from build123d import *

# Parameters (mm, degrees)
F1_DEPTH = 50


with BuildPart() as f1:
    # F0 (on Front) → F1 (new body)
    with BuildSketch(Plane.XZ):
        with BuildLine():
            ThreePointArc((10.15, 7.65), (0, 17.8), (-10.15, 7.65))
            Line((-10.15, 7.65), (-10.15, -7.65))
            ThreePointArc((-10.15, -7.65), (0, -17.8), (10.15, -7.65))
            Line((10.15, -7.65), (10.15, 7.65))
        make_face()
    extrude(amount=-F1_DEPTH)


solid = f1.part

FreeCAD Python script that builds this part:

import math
import FreeCAD as App
import Part
import Sketcher
from FreeCAD import Vector
Q = App.Units.Quantity

doc = App.newDocument("Part")
body = doc.addObject("PartDesign::Body", "Body")

# Sketch on XZ plane
sketch1 = body.newObject("Sketcher::SketchObject", "Sketch")
sketch1.AttachmentSupport = (doc.getObject("XZ_Plane"), [""])
sketch1.MapMode = "FlatFace"
sketch1.addGeometry(Part.ArcOfCircle(Part.Circle(Vector(0, 7.65, 0), Vector(0, 0, 1), 10.15), math.radians(0), math.radians(180)), False)
sketch1.addGeometry(Part.LineSegment(Vector(-10.15, 7.65, 0), Vector(-10.15, -7.65, 0)), False)
sketch1.addGeometry(Part.ArcOfCircle(Part.Circle(Vector(0, -7.65, 0), Vector(0, 0, 1), 10.15), math.radians(180), math.radians(360)), False)
sketch1.addGeometry(Part.LineSegment(Vector(10.15, -7.65, 0), Vector(10.15, 7.65, 0)), False)
sketch1.addConstraint(Sketcher.Constraint("Tangent", 0, 2, 1, 1))
sketch1.addConstraint(Sketcher.Constraint("Tangent", 1, 2, 2, 1))
sketch1.addConstraint(Sketcher.Constraint("Tangent", 2, 2, 3, 1))
sketch1.addConstraint(Sketcher.Constraint("Tangent", 3, 2, 0, 1))
sketch1.addConstraint(Sketcher.Constraint("Vertical", 1))
sketch1.addConstraint(Sketcher.Constraint("Vertical", 3))
sketch1.addConstraint(Sketcher.Constraint("Symmetric", 0, 3, 2, 3, -1, 1))
sketch1.addConstraint(Sketcher.Constraint("Radius", 0, Q("10.15 mm")))
sketch1.addConstraint(Sketcher.Constraint("DistanceY", 1, 2, 1, 1, Q("15.3 mm")))
pad1 = body.newObject("PartDesign::Pad", "Pad")
pad1.Profile = sketch1
pad1.Length = 50
pad1.Reversed = True

doc.recompute()
